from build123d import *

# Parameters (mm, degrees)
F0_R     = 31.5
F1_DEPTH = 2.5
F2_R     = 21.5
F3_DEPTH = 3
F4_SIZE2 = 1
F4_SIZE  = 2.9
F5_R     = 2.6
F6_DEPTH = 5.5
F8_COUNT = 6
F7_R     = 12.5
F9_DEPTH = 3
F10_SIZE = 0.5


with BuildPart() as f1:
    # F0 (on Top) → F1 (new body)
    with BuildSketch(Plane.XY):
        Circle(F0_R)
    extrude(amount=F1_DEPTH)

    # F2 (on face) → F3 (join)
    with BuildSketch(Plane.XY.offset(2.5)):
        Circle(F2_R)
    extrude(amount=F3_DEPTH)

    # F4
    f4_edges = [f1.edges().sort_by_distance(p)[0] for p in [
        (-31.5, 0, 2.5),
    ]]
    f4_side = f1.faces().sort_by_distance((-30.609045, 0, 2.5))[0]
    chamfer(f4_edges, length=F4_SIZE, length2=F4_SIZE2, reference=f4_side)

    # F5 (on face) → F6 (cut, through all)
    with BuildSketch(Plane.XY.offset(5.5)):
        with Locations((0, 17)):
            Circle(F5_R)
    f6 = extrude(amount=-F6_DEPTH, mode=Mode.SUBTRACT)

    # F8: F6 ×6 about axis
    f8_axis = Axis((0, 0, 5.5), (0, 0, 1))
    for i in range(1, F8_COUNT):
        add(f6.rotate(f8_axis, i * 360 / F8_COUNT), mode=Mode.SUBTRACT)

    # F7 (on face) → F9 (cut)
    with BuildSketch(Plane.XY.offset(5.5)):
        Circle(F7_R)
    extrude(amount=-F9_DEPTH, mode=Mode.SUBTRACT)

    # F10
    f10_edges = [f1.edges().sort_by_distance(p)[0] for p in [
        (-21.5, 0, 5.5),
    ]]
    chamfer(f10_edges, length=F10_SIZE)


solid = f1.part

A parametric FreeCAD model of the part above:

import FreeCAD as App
import Part
import Sketcher
from FreeCAD import Vector
Q = App.Units.Quantity


def edges_at(feature, points):
    """Names of the edges that pass closest to the given points."""
    edges = feature.Shape.Edges
    near = lambda p: min(range(len(edges)), key=lambda i: edges[i].distToShape(Part.Vertex(*p))[0])
    return sorted({f"Edge{near(p) + 1}" for p in points})

doc = App.newDocument("Part")
body = doc.addObject("PartDesign::Body", "Body")

# Sketch on XY plane
sketch1 = body.newObject("Sketcher::SketchObject", "Sketch")
sketch1.AttachmentSupport = (doc.getObject("XY_Plane"), [""])
sketch1.MapMode = "FlatFace"
sketch1.addGeometry(Part.Circle(Vector(0, 0, 0), Vector(0, 0, 1), 31.5), False)
sketch1.addConstraint(Sketcher.Constraint("Coincident", 0, 3, -1, 1))
sketch1.addConstraint(Sketcher.Constraint("Diameter", 0, Q("63 mm")))
pad1 = body.newObject("PartDesign::Pad", "Pad")
pad1.Profile = sketch1
pad1.Length = 2.5

# Sketch on XY plane
sketch2 = body.newObject("Sketcher::SketchObject", "Sketch001")
sketch2.AttachmentSupport = (doc.getObject("XY_Plane"), [""])
sketch2.MapMode = "FlatFace"
sketch2.AttachmentOffset = App.Placement(Vector(0, 0, 2.5), App.Rotation())
sketch2.addGeometry(Part.Circle(Vector(0, 0, 0), Vector(0, 0, 1), 21.5), False)
sketch2.addConstraint(Sketcher.Constraint("Coincident", 0, 3, -1, 1))
sketch2.addConstraint(Sketcher.Constraint("Diameter", 0, Q("43 mm")))
pad2 = body.newObject("PartDesign::Pad", "Pad001")
pad2.Profile = sketch2
pad2.Length = 3
doc.recompute()

chamfer = body.newObject("PartDesign::Chamfer", "Chamfer")
chamfer.Base = (pad2, edges_at(pad2, [(-31.5, 0, 2.5)]))
chamfer.ChamferType = "Two distances"
chamfer.Size = 2.9
chamfer.Size2 = 1
chamfer.FlipDirection = True

# Sketch on XY plane
sketch3 = body.newObject("Sketcher::SketchObject", "Sketch002")
sketch3.AttachmentSupport = (doc.getObject("XY_Plane"), [""])
sketch3.MapMode = "FlatFace"
sketch3.AttachmentOffset = App.Placement(Vector(0, 0, 5.5), App.Rotation())
sketch3.addGeometry(Part.Circle(Vector(0, 17, 0), Vector(0, 0, 1), 2.6), False)
sketch3.addConstraint(Sketcher.Constraint("PointOnObject", 0, 3, -2))
sketch3.addConstraint(Sketcher.Constraint("Diameter", 0, Q("5.2 mm")))
sketch3.addConstraint(Sketcher.Constraint("DistanceY", -1, 1, 0, 3, Q("17 mm")))
pocket1 = body.newObject("PartDesign::Pocket", "Pocket")
pocket1.Profile = sketch3
pocket1.Type = "ThroughAll"
doc.recompute()

polarpattern = body.newObject("PartDesign::PolarPattern", "PolarPattern")
polarpattern.Originals = [pocket1]
polarpattern.Axis = (doc.getObject("Z_Axis"), [""])
polarpattern.Angle = 360
polarpattern.Occurrences = 6
body.Tip = polarpattern

# Sketch on XY plane
sketch4 = body.newObject("Sketcher::SketchObject", "Sketch003")
sketch4.AttachmentSupport = (doc.getObject("XY_Plane"), [""])
sketch4.MapMode = "FlatFace"
sketch4.AttachmentOffset = App.Placement(Vector(0, 0, 5.5), App.Rotation())
sketch4.addGeometry(Part.Circle(Vector(0, 0, 0), Vector(0, 0, 1), 12.5), False)
sketch4.addConstraint(Sketcher.Constraint("Coincident", 0, 3, -1, 1))
sketch4.addConstraint(Sketcher.Constraint("Diameter", 0, Q("25 mm")))
pocket2 = body.newObject("PartDesign::Pocket", "Pocket001")
pocket2.Profile = sketch4
pocket2.Length = 3
doc.recompute()

chamfer2 = body.newObject("PartDesign::Chamfer", "Chamfer001")
chamfer2.Base = (pocket2, edges_at(pocket2, [(-21.5, 0, 5.5)]))
chamfer2.Size = 0.5

doc.recompute()
